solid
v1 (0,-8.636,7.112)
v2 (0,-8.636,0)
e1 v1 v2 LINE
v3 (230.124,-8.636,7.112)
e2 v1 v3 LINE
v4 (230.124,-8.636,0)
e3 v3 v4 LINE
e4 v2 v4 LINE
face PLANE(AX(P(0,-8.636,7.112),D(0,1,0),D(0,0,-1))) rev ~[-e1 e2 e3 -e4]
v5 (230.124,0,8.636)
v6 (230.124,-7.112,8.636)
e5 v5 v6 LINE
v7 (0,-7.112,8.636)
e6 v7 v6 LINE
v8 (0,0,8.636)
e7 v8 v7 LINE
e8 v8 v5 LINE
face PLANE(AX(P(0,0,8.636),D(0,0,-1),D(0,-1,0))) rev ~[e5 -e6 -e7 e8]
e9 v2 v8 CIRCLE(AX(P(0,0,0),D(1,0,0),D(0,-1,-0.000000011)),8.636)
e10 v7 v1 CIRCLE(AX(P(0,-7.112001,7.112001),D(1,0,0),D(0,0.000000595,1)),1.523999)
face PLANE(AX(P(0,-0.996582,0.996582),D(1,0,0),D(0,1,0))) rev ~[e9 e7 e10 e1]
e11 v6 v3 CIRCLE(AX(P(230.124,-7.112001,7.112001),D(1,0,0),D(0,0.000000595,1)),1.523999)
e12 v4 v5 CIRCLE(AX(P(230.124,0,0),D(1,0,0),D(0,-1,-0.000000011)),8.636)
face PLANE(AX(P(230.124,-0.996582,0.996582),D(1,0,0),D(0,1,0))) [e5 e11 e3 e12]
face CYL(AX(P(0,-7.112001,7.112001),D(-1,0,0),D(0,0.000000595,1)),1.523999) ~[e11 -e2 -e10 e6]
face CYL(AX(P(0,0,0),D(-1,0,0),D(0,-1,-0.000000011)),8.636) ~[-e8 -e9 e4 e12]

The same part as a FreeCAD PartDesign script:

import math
import FreeCAD as App
import Part
import Sketcher
Q = App.Units.Quantity

doc = App.newDocument("Part")
params = doc.addObject("Spreadsheet::Sheet", "Params")
for row, (alias, value) in enumerate([
    ("sketch1_radius", "0.34 in"),
    ("sketch1_radius2", "0.06 in"),
    ("pad1_length", "9.06 in"),
], start=1):
    params.set(f"A{row}", alias)
    params.set(f"B{row}", "=" + value)
    params.setAlias(f"B{row}", alias)

body = doc.addObject("PartDesign::Body", "Body")

# Sketch on YZ plane
sketch1 = doc.addObject("Sketcher::SketchObject", "Sketch")
body.addObject(sketch1)
sketch1.AttachmentSupport = (doc.YZ_Plane, [""])
sketch1.MapMode = "FlatFace"
sketch1.addGeometry([
    Part.LineSegment(App.Vector(-8.6, 7.1, 0), App.Vector(-8.6, 0, 0)),
    Part.ArcOfCircle(Part.Circle(App.Vector(0, 0, 0), App.Vector(0, 0, 1), 8.6), math.radians(-180), math.radians(90)),
    Part.LineSegment(App.Vector(0, 8.6, 0), App.Vector(-7.1, 8.6, 0)),
    Part.ArcOfCircle(Part.Circle(App.Vector(-7.1, 7.1, 0), App.Vector(0, 0, 1), 1.5), math.radians(90), math.radians(180)),
], False)
sketch1.addConstraint([
    Sketcher.Constraint("Tangent", 0, 2, 1, 1),
    Sketcher.Constraint("Tangent", 1, 2, 2, 1),
    Sketcher.Constraint("Tangent", 2, 2, 3, 1),
    Sketcher.Constraint("Tangent", 3, 2, 0, 1),
    Sketcher.Constraint("Vertical", 0),
    Sketcher.Constraint("Horizontal", 2),
    Sketcher.Constraint("Coincident", 1, 3, -1, 1),
    Sketcher.Constraint("Radius", 1, Q("0.34 in")),
    Sketcher.Constraint("Radius", 3, Q("0.06 in")),
])
sketch1.setExpression("Constraints[7]", "Params.sketch1_radius")
sketch1.setExpression("Constraints[8]", "Params.sketch1_radius2")
pad1 = doc.addObject("PartDesign::Pad", "Pad")
body.addObject(pad1)
pad1.Profile = sketch1
pad1.setExpression("Length", "Params.pad1_length")

doc.recompute()
